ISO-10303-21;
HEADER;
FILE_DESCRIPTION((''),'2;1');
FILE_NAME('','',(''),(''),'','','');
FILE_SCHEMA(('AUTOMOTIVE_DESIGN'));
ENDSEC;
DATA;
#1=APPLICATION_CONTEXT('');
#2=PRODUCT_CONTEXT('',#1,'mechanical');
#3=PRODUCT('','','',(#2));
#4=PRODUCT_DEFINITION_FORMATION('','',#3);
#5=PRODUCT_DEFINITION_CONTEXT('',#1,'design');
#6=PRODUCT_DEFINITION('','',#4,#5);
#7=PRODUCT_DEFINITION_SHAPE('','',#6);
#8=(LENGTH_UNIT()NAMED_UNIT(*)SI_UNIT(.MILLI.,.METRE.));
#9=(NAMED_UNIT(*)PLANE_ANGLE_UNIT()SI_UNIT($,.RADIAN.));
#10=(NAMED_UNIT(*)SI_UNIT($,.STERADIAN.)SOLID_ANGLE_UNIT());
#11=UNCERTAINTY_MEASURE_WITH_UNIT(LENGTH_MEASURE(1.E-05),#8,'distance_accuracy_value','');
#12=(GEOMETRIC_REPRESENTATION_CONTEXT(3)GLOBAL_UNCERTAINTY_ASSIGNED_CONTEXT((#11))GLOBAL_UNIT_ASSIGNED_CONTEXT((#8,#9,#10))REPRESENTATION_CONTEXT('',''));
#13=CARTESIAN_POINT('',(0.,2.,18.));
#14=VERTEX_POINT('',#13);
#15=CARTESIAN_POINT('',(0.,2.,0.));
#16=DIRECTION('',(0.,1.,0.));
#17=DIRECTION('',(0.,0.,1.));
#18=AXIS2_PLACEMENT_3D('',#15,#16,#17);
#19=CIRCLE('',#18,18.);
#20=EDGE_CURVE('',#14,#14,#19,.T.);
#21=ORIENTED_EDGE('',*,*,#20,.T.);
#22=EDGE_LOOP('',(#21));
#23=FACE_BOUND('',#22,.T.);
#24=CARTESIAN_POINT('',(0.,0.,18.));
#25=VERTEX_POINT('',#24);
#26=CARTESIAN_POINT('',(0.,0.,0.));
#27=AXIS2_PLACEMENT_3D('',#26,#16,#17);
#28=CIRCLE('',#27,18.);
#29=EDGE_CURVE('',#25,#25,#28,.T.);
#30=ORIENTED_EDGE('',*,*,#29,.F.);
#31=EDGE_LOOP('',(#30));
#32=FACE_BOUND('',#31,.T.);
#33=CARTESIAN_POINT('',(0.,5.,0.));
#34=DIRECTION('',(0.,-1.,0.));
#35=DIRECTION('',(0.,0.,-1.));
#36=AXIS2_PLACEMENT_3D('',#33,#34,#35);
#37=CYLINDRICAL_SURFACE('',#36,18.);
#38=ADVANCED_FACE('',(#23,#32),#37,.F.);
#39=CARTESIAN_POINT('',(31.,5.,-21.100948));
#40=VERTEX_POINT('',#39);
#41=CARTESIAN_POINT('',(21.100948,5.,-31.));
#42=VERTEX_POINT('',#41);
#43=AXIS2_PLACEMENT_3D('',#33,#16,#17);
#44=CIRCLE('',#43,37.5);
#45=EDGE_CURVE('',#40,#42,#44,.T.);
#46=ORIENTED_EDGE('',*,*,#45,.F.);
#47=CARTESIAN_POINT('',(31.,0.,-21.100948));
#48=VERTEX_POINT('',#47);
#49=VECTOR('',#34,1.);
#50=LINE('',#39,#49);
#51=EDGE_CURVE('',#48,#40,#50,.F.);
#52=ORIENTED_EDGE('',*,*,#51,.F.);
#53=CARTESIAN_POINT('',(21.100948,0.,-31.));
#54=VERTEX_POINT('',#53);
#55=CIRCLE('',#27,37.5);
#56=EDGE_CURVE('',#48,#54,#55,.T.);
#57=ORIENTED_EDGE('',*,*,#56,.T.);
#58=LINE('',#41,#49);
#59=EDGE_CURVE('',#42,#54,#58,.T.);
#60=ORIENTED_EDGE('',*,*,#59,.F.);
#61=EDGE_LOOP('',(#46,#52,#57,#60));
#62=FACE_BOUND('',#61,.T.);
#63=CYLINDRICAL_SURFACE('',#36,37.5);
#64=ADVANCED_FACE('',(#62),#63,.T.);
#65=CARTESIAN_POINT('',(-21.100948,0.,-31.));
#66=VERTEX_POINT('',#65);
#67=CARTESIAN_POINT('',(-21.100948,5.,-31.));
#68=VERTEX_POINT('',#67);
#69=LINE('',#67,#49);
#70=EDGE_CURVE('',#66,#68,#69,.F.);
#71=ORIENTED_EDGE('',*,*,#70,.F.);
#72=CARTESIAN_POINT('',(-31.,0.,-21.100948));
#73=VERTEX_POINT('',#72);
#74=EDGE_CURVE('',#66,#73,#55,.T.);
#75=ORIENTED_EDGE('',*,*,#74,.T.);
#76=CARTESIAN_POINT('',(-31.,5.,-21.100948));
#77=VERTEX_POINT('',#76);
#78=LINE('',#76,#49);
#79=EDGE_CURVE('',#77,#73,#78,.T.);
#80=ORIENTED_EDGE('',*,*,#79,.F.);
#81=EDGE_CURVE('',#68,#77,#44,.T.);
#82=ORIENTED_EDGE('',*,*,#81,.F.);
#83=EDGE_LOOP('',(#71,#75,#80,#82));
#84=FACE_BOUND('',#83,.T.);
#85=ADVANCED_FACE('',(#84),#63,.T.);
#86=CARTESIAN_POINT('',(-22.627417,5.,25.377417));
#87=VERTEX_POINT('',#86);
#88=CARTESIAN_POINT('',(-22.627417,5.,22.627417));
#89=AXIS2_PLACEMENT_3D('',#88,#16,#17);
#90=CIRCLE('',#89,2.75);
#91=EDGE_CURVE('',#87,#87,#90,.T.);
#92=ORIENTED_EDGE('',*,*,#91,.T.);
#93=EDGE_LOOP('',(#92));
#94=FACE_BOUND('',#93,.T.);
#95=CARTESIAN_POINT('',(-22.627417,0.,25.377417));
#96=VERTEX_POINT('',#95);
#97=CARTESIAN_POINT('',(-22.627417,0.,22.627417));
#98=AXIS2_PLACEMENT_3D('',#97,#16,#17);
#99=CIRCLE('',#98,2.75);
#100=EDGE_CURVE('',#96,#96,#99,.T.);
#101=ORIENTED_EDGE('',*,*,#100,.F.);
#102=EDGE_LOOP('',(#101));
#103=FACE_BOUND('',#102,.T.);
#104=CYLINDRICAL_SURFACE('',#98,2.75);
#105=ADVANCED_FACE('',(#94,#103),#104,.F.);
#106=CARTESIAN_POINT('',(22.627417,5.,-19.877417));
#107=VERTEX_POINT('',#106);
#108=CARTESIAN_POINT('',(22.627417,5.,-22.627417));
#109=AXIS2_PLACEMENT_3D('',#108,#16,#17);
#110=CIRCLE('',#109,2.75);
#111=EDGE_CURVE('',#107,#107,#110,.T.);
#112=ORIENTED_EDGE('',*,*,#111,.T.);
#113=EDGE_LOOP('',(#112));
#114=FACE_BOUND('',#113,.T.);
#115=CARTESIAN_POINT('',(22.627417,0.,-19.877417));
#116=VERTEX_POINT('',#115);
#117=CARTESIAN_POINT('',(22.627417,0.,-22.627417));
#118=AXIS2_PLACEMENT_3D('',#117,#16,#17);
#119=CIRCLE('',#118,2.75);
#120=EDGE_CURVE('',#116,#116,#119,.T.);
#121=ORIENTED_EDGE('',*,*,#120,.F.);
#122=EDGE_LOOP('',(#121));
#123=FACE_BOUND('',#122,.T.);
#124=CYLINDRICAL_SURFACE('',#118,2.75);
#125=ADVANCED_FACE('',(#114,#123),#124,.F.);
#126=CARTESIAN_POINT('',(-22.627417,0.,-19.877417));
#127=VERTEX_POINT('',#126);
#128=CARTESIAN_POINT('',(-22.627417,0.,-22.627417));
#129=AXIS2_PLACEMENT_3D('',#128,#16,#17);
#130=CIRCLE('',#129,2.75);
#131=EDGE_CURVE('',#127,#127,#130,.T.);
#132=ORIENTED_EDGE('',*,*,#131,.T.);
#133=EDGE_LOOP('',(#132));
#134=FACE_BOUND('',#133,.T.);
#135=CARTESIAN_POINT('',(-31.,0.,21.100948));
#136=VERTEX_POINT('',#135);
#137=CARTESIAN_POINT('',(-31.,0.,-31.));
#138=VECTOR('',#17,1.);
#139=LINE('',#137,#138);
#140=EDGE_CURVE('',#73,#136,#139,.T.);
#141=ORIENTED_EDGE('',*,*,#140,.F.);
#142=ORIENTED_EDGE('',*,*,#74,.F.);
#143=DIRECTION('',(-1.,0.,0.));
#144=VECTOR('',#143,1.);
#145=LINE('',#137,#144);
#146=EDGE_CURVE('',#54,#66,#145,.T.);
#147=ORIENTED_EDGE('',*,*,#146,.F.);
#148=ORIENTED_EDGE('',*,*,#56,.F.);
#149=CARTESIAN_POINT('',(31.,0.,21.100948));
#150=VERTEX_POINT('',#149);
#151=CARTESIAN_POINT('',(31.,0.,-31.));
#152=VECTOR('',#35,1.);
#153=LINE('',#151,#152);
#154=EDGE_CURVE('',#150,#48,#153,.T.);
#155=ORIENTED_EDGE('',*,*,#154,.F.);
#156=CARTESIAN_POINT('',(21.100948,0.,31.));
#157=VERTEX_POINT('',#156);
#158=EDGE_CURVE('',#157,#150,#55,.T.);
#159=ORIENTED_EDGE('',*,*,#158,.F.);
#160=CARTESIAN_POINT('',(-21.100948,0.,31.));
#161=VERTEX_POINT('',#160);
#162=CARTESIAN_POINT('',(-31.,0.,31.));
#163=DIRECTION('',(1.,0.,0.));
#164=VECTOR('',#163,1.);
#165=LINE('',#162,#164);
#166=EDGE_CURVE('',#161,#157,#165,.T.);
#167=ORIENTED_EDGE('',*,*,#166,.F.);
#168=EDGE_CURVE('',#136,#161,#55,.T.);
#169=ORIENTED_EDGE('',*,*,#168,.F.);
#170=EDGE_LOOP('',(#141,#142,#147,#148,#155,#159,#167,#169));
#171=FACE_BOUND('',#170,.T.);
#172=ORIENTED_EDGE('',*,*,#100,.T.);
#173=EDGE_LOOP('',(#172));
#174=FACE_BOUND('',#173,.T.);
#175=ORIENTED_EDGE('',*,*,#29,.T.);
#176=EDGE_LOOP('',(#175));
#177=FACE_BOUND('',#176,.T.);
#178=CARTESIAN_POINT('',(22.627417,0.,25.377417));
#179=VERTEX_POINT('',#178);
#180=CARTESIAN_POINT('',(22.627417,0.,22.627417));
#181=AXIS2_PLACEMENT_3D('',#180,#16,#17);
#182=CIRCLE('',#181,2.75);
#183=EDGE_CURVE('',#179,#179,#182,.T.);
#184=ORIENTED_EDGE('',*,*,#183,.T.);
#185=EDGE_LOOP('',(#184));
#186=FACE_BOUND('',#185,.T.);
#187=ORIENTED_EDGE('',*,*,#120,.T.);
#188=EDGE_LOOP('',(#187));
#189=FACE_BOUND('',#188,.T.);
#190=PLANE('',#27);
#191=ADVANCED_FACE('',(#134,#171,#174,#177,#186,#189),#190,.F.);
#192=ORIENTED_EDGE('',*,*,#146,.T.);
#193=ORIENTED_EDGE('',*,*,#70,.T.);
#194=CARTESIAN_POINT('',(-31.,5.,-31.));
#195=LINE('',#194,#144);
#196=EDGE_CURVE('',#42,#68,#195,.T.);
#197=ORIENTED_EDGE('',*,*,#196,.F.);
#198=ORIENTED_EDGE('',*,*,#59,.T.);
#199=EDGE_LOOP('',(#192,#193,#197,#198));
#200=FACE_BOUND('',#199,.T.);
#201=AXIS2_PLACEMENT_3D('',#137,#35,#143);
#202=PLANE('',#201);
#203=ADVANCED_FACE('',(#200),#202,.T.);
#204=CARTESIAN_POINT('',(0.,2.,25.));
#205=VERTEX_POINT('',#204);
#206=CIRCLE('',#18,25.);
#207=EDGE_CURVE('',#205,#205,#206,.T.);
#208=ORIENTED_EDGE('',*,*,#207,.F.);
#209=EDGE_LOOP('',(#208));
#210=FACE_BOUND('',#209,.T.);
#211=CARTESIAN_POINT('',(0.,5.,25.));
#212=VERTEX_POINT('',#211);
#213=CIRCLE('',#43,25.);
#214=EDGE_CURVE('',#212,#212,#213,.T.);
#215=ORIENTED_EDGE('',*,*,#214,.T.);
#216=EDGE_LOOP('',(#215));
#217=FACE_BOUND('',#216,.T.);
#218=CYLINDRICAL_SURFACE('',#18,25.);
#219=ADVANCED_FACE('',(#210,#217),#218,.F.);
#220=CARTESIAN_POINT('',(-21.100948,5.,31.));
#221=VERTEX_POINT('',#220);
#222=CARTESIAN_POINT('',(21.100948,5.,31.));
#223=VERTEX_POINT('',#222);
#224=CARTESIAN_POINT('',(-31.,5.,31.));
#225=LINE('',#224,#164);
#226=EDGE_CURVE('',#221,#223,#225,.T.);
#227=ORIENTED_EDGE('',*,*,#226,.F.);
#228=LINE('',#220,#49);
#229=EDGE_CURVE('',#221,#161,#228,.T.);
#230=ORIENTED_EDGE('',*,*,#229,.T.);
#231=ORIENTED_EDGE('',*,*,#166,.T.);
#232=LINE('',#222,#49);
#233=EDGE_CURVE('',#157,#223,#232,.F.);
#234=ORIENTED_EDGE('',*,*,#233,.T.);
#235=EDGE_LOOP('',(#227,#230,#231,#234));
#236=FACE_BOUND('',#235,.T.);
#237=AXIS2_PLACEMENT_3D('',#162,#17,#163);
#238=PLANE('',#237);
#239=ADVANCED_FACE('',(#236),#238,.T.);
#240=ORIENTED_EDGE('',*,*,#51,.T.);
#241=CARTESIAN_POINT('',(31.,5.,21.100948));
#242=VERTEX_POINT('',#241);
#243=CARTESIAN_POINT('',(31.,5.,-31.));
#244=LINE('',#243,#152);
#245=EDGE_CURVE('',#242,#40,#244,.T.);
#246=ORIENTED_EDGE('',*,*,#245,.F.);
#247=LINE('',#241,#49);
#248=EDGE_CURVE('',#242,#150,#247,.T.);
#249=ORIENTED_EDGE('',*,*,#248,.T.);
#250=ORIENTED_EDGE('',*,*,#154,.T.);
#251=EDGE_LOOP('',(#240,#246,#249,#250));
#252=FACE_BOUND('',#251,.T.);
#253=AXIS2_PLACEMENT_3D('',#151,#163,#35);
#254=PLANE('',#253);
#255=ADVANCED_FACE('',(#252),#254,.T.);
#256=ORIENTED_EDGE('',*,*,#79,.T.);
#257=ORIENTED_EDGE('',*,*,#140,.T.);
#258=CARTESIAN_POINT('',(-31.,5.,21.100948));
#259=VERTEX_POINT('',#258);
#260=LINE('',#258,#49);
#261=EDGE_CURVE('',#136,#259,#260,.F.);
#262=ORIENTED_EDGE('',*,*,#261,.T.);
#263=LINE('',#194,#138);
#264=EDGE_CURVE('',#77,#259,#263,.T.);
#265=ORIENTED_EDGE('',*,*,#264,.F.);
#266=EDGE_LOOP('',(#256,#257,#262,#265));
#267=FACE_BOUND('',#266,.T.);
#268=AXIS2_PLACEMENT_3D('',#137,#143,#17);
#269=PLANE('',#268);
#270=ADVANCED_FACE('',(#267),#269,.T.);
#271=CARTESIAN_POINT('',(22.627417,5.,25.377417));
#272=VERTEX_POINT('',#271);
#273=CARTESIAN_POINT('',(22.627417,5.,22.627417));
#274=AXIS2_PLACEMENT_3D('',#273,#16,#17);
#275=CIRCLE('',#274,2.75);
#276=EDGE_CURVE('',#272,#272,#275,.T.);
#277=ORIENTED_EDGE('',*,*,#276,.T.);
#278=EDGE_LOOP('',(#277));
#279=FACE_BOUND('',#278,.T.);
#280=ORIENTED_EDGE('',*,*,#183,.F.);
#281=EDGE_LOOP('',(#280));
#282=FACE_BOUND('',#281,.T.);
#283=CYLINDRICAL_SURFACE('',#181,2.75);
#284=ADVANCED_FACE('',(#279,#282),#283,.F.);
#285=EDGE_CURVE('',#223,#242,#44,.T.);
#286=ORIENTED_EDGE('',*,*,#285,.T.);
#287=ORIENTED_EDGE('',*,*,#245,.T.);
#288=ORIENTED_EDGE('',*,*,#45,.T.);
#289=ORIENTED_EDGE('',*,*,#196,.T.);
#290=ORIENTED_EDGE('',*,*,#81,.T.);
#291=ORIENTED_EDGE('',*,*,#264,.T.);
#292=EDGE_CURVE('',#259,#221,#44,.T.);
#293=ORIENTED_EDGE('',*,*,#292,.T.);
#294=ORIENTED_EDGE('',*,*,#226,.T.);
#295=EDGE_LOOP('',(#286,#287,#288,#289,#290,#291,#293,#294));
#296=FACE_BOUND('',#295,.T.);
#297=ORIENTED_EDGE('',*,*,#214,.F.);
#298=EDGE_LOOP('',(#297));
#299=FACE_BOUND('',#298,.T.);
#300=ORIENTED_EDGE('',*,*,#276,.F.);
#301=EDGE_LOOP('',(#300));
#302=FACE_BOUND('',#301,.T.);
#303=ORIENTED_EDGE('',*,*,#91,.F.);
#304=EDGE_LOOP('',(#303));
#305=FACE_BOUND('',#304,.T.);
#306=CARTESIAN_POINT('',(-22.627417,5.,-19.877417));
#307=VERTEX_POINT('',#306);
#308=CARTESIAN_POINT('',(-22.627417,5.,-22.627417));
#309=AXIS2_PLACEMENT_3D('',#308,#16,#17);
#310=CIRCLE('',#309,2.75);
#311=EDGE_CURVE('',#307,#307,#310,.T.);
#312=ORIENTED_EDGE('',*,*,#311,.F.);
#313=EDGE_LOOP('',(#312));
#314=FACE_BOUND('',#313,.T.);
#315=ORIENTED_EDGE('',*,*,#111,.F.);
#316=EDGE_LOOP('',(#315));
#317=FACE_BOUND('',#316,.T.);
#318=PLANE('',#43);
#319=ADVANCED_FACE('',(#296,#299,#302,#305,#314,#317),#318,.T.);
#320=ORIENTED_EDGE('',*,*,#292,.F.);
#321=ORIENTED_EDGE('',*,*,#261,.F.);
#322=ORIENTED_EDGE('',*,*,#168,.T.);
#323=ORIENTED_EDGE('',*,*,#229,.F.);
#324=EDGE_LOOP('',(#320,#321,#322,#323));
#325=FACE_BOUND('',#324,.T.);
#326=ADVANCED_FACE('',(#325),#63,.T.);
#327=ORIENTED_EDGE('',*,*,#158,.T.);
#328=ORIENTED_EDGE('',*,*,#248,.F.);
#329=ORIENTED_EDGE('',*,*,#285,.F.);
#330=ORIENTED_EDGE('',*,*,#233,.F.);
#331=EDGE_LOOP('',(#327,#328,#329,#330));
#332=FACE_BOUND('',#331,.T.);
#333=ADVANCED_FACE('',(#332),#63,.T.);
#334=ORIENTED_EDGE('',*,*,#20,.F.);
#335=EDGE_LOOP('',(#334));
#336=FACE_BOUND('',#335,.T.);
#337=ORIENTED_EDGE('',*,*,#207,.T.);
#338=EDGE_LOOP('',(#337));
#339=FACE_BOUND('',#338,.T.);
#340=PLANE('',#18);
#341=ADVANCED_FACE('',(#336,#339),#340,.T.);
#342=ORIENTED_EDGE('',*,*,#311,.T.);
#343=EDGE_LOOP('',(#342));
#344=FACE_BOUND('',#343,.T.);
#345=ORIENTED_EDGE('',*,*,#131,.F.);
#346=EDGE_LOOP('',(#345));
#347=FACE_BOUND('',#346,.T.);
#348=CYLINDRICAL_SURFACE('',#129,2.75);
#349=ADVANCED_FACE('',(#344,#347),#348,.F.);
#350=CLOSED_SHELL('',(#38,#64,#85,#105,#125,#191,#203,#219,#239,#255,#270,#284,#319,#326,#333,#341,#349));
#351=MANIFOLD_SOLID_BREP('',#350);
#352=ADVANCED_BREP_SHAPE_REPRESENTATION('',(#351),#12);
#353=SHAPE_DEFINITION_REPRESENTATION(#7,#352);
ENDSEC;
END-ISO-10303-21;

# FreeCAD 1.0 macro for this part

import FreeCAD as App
import Part
import Sketcher

doc = App.newDocument("Part")
body = doc.addObject("PartDesign::Body", "Body")

sketch1 = doc.addObject("Sketcher::SketchObject", "Sketch")
body.addObject(sketch1)
sketch1.AttachmentSupport = (doc.XZ_Plane, [""])
sketch1.MapMode = "FlatFace"
sketch1.addGeometry([
    Part.Circle(App.Vector(0, 0, 0), App.Vector(0, 0, 1), 38),
    Part.Circle(App.Vector(0, 0, 0), App.Vector(0, 0, 1), 18),
], False)
sketch1.addConstraint([
    Sketcher.Constraint("Coincident", 0, 3, -1, 1),
    Sketcher.Constraint("Coincident", 1, 3, -1, 1),
    Sketcher.Constraint("Diameter", 0, 75.0),
    Sketcher.Constraint("Diameter", 1, 36.0),
])
pad1 = doc.addObject("PartDesign::Pad", "Pad")
body.addObject(pad1)
pad1.Profile = sketch1
pad1.Length = 5
pad1.Reversed = True

sketch2 = doc.addObject("Sketcher::SketchObject", "Sketch001")
body.addObject(sketch2)
sketch2.AttachmentSupport = (doc.XZ_Plane, [""])
sketch2.MapMode = "FlatFace"
sketch2.AttachmentOffset = App.Placement(App.Vector(0, 0, -5), App.Rotation())
sketch2.addGeometry(Part.Circle(App.Vector(0, 0, 0), App.Vector(0, 0, 1), 25), False)
sketch2.addConstraint([
    Sketcher.Constraint("Coincident", 0, 3, -1, 1),
    Sketcher.Constraint("Diameter", 0, 50.0),
])
pocket1 = doc.addObject("PartDesign::Pocket", "Pocket")
body.addObject(pocket1)
pocket1.Profile = sketch2
pocket1.Length = 3
pocket1.Reversed = True

sketch3 = doc.addObject("Sketcher::SketchObject", "Sketch002")
body.addObject(sketch3)
sketch3.AttachmentSupport = (doc.XZ_Plane, [""])
sketch3.MapMode = "FlatFace"
sketch3.AttachmentOffset = App.Placement(App.Vector(0, 0, -5), App.Rotation())
sketch3.addGeometry([
    Part.LineSegment(App.Vector(-49, -49, 0), App.Vector(-49, 49, 0)),
    Part.LineSegment(App.Vector(-49, 49, 0), App.Vector(49, 49, 0)),
    Part.LineSegment(App.Vector(49, 49, 0), App.Vector(49, -49, 0)),
    Part.LineSegment(App.Vector(49, -49, 0), App.Vector(-49, -49, 0)),
    Part.LineSegment(App.Vector(31, 31, 0), App.Vector(-31, 31, 0)),
    Part.LineSegment(App.Vector(-31, 31, 0), App.Vector(-31, -31, 0)),
    Part.LineSegment(App.Vector(-31, -31, 0), App.Vector(31, -31, 0)),
    Part.LineSegment(App.Vector(31, -31, 0), App.Vector(31, 31, 0)),
], False)
sketch3.addConstraint([
    Sketcher.Constraint("Coincident", 0, 2, 1, 1),
    Sketcher.Constraint("Coincident", 1, 2, 2, 1),
    Sketcher.Constraint("Coincident", 2, 2, 3, 1),
    Sketcher.Constraint("Coincident", 3, 2, 0, 1),
    Sketcher.Constraint("Coincident", 4, 2, 5, 1),
    Sketcher.Constraint("Coincident", 5, 2, 6, 1),
    Sketcher.Constraint("Coincident", 6, 2, 7, 1),
    Sketcher.Constraint("Coincident", 7, 2, 4, 1),
    Sketcher.Constraint("Vertical", 0),
    Sketcher.Constraint("Horizontal", 1),
    Sketcher.Constraint("Vertical", 2),
    Sketcher.Constraint("Horizontal", 3),
    Sketcher.Constraint("Horizontal", 4),
    Sketcher.Constraint("Vertical", 5),
    Sketcher.Constraint("Horizontal", 6),
    Sketcher.Constraint("Vertical", 7),
    Sketcher.Constraint("Symmetric", 0, 2, 2, 2, -1, 1),
    Sketcher.Constraint("Symmetric", 4, 2, 6, 2, -1, 1),
    Sketcher.Constraint("Equal", 3, 0),
    Sketcher.Constraint("Equal", 6, 5),
    Sketcher.Constraint("DistanceX", 4, 2, 4, 1, 62.0),
    Sketcher.Constraint("DistanceX", 1, 1, 1, 2, 98.236),
])
pocket2 = doc.addObject("PartDesign::Pocket", "Pocket001")
body.addObject(pocket2)
pocket2.Profile = sketch3
pocket2.Type = "ThroughAll"
pocket2.Reversed = True

sketch4 = doc.addObject("Sketcher::SketchObject", "Sketch003")
body.addObject(sketch4)
sketch4.AttachmentSupport = (doc.XZ_Plane, [""])
sketch4.MapMode = "FlatFace"
sketch4.AttachmentOffset = App.Placement(App.Vector(0, 0, -5), App.Rotation())
sketch4.addGeometry([
    Part.Circle(App.Vector(-22.6, -22.6, 0), App.Vector(0, 0, 1), 2.8),
    Part.Circle(App.Vector(22.6, -22.6, 0), App.Vector(0, 0, 1), 2.8),
    Part.Circle(App.Vector(22.6, 22.6, 0), App.Vector(0, 0, 1), 2.8),
    Part.Circle(App.Vector(-22.6, 22.6, 0), App.Vector(0, 0, 1), 2.8),
], False)
sketch4.addConstraint([
    Sketcher.Constraint("Equal", 0, 1),
    Sketcher.Constraint("Equal", 1, 2),
    Sketcher.Constraint("Equal", 2, 3),
    Sketcher.Constraint("Symmetric", 0, 3, 2, 3, -1, 1),
    Sketcher.Constraint("Symmetric", 1, 3, 3, 3, -1, 1),
    Sketcher.Constraint("Symmetric", 0, 3, 1, 3, -2),
    Sketcher.Constraint("Diameter", 0, 5.5),
    Sketcher.Constraint("DistanceX", 0, 3, -1, 1, 22.627417),
    Sketcher.Constraint("DistanceY", 0, 3, -1, 1, 22.627417),
])
pocket3 = doc.addObject("PartDesign::Pocket", "Pocket002")
body.addObject(pocket3)
pocket3.Profile = sketch4
pocket3.Type = "ThroughAll"
pocket3.Reversed = True

doc.recompute()
